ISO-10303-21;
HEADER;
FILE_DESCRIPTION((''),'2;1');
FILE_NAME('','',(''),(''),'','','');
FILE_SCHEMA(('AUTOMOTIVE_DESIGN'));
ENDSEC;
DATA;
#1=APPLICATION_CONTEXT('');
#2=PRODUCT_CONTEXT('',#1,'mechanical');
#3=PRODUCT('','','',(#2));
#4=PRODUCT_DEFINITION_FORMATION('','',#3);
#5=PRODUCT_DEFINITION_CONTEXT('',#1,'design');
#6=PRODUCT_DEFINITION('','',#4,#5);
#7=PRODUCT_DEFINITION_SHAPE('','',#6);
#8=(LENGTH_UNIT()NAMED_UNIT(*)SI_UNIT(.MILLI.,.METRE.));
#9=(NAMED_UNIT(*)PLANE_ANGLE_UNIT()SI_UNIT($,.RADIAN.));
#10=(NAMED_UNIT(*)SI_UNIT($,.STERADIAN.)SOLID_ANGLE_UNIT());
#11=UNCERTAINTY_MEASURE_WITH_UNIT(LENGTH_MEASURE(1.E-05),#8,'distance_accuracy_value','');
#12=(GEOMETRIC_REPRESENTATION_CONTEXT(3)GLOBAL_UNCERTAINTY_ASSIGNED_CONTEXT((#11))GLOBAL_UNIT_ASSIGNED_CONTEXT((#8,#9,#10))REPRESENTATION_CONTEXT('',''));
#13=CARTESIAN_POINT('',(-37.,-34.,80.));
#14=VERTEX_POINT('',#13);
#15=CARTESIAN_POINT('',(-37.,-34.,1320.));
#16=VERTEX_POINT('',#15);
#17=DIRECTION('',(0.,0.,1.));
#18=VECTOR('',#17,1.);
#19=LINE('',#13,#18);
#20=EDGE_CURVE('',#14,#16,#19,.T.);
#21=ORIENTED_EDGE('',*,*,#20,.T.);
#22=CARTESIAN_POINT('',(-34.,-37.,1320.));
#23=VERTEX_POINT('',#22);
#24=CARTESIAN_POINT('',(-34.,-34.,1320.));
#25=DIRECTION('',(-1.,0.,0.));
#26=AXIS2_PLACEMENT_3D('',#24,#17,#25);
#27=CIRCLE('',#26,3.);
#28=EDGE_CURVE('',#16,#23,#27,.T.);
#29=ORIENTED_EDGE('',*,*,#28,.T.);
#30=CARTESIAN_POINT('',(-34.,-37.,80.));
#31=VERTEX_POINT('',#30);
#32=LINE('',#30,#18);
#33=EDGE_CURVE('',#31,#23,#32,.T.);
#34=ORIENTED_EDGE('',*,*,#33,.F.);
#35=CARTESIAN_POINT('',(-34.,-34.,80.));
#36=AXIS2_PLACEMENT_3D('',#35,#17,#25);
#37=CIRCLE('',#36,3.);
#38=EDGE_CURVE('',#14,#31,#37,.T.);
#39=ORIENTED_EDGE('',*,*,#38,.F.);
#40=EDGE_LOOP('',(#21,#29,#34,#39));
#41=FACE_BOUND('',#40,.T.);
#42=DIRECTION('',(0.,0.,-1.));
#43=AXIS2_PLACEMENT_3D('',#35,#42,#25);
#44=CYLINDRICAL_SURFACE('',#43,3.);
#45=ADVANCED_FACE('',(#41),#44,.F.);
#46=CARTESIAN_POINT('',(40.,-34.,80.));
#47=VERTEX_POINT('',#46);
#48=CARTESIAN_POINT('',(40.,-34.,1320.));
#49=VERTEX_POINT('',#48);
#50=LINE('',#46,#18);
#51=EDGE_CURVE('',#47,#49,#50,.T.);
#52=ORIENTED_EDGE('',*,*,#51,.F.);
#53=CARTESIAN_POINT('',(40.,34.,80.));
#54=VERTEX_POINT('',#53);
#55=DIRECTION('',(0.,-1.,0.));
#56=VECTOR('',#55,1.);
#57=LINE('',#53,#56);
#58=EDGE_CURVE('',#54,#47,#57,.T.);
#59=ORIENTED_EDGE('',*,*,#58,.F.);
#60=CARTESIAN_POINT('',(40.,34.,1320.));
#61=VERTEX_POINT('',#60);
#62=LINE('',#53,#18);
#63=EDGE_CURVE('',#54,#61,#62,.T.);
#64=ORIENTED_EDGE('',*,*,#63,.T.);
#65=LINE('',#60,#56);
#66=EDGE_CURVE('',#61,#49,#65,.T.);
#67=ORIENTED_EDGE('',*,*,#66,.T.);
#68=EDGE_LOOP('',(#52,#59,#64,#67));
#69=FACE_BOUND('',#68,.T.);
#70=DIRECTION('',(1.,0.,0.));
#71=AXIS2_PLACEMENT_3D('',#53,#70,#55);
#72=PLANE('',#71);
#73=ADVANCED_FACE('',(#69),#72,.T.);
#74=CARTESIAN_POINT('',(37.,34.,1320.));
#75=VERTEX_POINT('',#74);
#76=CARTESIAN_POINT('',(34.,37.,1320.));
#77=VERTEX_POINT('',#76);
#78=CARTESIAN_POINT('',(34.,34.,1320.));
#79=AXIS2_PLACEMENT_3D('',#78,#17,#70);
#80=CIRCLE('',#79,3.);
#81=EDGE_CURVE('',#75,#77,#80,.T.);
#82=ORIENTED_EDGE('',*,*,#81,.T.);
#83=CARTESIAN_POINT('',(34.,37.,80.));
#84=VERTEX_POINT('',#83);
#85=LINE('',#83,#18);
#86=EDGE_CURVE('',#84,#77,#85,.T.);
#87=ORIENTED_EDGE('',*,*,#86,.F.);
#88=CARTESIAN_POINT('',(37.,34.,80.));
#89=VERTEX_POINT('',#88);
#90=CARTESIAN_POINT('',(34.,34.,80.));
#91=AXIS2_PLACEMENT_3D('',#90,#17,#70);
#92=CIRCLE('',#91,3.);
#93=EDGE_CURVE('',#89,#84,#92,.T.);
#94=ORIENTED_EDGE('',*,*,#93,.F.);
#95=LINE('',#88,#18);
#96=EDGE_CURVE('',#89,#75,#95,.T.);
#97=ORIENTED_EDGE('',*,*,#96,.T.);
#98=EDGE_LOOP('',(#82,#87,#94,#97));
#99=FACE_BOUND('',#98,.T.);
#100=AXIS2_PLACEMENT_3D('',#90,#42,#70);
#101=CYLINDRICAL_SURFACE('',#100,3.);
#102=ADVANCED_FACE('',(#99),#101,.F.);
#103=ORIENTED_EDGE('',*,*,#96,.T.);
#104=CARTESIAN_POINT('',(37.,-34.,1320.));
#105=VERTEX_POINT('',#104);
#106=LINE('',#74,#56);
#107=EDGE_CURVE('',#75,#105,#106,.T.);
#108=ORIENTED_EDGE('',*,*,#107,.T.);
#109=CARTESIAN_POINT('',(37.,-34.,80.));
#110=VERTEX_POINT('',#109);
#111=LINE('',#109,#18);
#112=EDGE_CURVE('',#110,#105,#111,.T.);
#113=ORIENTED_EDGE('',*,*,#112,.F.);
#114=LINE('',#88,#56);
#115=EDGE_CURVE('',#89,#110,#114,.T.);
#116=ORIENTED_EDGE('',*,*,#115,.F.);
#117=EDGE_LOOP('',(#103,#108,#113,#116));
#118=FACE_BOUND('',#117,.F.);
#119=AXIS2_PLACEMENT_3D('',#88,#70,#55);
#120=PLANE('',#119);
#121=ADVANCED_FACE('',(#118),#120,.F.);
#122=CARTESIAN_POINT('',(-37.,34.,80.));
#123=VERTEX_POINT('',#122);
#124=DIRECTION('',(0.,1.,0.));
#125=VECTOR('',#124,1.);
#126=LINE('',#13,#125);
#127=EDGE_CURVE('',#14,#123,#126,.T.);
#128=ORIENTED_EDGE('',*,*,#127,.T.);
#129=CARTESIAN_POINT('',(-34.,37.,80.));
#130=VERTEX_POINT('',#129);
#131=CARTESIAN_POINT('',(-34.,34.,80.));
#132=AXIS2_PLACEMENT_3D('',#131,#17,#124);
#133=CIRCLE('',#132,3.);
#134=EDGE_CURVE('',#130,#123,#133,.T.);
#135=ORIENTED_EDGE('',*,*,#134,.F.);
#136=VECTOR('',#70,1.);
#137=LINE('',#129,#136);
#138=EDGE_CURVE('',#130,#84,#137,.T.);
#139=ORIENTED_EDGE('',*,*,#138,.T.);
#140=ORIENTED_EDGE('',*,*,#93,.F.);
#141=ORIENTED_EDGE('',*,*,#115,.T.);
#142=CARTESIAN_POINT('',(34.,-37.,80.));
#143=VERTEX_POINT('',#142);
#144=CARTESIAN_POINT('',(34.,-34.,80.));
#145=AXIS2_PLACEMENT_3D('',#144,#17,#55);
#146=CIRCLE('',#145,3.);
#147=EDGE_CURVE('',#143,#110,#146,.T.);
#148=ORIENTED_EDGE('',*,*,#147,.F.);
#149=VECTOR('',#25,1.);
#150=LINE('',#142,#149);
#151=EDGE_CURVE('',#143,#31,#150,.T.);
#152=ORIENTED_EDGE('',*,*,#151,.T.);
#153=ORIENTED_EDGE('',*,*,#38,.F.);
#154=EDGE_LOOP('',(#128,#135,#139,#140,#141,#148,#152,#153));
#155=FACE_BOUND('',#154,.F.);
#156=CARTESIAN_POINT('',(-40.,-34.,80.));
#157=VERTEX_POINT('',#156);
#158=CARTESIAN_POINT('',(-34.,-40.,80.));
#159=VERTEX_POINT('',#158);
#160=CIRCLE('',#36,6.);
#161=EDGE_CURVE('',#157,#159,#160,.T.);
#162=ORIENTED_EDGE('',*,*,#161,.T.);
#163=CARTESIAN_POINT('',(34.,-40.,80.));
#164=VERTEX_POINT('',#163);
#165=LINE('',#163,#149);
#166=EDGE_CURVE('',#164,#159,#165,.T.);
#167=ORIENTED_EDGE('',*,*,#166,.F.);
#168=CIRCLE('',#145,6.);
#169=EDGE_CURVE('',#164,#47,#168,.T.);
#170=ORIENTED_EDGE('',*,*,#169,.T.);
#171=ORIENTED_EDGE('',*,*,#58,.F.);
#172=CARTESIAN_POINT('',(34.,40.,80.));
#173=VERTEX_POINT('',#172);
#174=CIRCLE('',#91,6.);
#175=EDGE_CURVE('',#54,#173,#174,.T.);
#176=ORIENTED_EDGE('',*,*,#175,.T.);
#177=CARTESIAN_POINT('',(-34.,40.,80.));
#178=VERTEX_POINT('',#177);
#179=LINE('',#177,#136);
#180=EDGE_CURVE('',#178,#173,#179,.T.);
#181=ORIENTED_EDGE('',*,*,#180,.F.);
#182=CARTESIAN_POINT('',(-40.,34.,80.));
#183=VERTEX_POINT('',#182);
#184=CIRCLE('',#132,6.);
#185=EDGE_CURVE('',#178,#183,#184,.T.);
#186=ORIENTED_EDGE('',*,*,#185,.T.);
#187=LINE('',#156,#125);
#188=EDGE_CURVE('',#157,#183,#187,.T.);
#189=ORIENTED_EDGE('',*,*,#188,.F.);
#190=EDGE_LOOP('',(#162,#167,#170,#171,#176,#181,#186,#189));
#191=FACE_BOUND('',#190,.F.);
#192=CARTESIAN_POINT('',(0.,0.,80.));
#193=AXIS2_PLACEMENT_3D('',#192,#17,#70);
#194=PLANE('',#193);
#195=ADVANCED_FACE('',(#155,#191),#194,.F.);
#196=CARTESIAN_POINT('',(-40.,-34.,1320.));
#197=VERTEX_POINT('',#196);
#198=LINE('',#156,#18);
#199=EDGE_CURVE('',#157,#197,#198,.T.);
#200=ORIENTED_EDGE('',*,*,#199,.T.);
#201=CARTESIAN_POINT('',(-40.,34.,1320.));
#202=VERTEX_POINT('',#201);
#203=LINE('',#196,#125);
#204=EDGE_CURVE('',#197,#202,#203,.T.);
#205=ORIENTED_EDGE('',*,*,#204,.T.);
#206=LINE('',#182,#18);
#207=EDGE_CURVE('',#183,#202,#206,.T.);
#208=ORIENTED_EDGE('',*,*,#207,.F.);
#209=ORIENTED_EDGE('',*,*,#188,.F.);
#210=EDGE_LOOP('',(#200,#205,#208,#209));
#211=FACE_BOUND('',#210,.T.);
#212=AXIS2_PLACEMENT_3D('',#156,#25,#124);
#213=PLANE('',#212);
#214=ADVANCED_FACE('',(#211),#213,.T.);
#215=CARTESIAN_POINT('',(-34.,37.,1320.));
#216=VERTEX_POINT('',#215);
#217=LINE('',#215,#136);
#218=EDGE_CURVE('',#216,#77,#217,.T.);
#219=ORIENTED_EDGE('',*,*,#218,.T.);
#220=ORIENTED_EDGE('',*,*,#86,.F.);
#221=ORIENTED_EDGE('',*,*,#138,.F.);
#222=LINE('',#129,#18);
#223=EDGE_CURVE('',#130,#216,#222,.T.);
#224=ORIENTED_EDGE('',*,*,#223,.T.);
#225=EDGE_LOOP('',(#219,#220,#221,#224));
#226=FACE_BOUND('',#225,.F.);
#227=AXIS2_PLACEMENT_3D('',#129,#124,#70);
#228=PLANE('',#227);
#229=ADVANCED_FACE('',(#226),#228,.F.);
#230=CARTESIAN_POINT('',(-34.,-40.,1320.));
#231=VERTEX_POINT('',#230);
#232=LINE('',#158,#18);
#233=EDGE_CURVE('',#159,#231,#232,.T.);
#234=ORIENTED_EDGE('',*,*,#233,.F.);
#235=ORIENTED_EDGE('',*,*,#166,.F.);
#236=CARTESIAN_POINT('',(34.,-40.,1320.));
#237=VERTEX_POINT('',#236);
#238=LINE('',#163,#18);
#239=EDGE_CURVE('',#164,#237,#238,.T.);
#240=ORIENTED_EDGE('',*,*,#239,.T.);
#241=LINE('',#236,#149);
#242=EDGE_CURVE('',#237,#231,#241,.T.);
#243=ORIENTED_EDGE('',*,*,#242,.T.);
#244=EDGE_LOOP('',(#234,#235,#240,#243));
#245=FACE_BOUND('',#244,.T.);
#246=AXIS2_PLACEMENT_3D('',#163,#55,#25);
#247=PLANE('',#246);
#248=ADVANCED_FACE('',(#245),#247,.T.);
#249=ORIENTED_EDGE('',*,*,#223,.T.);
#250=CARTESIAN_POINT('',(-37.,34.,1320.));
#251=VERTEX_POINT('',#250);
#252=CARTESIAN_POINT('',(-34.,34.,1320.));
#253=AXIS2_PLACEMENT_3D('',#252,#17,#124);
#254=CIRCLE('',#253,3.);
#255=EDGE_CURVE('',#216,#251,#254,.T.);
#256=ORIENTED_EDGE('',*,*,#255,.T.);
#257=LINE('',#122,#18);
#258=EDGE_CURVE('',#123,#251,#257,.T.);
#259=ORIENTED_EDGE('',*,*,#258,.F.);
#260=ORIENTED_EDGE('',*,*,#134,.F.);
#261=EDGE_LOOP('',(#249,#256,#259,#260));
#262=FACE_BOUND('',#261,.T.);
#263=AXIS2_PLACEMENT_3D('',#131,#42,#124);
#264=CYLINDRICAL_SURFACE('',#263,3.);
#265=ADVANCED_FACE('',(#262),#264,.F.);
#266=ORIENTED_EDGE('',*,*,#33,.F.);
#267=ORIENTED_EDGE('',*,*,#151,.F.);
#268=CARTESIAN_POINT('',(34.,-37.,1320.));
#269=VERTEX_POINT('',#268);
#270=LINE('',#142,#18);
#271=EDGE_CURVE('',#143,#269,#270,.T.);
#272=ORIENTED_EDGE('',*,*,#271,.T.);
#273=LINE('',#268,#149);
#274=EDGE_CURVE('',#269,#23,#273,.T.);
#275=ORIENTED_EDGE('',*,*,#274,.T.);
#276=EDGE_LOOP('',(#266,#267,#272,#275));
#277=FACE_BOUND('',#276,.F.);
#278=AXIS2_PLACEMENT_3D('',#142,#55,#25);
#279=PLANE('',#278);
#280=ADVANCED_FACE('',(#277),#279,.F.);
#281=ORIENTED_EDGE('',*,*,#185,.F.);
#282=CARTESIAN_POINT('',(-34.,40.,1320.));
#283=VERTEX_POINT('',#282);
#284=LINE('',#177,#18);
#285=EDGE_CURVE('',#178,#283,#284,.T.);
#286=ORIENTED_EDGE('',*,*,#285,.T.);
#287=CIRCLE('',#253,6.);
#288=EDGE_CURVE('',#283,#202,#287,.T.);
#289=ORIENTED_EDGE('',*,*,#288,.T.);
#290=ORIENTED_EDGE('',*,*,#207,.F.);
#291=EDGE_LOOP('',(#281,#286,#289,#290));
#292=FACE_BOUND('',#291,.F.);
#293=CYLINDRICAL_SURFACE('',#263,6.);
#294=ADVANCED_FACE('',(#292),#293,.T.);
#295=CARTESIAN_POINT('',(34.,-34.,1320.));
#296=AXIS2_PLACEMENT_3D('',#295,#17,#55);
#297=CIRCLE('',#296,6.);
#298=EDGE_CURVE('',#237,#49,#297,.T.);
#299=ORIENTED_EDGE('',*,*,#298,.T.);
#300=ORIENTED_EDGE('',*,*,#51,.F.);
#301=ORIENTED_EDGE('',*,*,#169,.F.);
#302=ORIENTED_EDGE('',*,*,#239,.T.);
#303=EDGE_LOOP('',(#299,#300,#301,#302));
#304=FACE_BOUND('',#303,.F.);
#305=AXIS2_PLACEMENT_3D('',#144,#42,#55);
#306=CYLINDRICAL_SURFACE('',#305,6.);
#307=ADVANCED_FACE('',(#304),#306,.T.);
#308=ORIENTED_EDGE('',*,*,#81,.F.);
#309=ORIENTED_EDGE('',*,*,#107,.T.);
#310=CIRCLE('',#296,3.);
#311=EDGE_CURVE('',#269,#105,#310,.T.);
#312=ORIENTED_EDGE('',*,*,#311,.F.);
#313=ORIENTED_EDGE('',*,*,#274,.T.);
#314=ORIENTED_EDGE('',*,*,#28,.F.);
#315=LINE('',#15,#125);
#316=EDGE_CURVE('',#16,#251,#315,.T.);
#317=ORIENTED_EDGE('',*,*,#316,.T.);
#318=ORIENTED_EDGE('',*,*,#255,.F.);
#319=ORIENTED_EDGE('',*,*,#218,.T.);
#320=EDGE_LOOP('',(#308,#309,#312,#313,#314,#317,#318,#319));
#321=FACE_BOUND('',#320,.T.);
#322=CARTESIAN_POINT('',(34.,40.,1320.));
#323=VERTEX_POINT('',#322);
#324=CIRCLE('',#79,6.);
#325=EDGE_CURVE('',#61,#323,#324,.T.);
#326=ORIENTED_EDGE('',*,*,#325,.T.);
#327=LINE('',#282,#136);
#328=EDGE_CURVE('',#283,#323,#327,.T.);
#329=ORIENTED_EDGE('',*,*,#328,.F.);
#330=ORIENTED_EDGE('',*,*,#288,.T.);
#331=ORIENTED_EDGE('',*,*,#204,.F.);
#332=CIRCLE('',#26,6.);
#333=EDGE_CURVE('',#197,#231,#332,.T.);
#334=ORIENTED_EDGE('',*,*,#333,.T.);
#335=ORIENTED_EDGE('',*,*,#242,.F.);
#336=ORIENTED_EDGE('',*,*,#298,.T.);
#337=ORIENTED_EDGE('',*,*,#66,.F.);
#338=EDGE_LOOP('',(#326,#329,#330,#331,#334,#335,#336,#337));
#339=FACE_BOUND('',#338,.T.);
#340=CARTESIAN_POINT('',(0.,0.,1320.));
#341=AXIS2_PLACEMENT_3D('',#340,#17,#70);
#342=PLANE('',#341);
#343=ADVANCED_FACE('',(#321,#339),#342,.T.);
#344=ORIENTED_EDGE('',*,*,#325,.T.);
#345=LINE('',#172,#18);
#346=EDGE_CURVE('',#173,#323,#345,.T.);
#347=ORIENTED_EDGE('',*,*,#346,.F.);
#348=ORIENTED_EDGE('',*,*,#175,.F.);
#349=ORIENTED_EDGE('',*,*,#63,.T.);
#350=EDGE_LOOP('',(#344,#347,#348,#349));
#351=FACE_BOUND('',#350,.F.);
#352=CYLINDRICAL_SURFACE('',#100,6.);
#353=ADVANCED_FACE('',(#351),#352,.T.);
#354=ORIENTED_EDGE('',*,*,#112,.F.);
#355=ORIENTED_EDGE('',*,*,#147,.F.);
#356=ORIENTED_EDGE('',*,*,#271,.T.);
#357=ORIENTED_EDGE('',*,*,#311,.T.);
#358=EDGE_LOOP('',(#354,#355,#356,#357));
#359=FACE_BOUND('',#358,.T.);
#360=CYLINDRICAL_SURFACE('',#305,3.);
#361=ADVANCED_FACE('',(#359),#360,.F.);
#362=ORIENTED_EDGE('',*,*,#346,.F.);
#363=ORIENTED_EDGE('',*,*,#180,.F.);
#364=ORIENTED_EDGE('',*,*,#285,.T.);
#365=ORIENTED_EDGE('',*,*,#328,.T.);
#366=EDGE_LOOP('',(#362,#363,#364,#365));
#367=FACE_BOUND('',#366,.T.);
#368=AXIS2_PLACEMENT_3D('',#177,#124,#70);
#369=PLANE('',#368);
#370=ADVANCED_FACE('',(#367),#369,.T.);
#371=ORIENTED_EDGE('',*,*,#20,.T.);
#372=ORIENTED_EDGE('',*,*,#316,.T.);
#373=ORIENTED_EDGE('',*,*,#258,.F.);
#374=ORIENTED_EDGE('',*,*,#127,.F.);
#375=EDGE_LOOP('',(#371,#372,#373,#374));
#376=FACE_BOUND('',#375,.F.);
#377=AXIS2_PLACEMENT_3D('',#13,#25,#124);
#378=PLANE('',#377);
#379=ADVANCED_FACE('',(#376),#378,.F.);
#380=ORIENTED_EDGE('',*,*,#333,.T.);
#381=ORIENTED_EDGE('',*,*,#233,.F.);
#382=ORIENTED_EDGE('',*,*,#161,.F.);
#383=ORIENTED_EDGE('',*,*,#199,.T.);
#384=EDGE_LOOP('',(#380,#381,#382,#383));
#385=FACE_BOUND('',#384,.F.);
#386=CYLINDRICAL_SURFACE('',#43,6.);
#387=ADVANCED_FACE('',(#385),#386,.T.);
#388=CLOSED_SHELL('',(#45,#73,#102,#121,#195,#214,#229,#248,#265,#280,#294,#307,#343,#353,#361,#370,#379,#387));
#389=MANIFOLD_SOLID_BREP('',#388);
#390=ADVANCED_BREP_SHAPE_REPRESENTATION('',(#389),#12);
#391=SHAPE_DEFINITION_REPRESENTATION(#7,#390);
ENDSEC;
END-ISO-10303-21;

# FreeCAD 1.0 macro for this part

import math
import FreeCAD as App
import Part
import Sketcher
Q = App.Units.Quantity

doc = App.newDocument("Part")
body = doc.addObject("PartDesign::Body", "Body")

sketch1 = body.newObject("Sketcher::SketchObject", "Sketch")
sketch1.AttachmentSupport = (doc.getObject("XY_Plane"), [""])
sketch1.MapMode = "FlatFace"
sketch1.AttachmentOffset = App.Placement(App.Vector(0, 0, 80), App.Rotation())
sketch1.addGeometry([
    Part.LineSegment(App.Vector(-40, 34, 0), App.Vector(-40, -34, 0)),
    Part.ArcOfCircle(Part.Circle(App.Vector(-34, -34, 0), App.Vector(0, 0, 1), 6), math.radians(180), math.radians(270)),
    Part.LineSegment(App.Vector(-34, -40, 0), App.Vector(34, -40, 0)),
    Part.ArcOfCircle(Part.Circle(App.Vector(34, -34, 0), App.Vector(0, 0, 1), 6), math.radians(-90), math.radians(0)),
    Part.LineSegment(App.Vector(40, -34, 0), App.Vector(40, 34, 0)),
    Part.ArcOfCircle(Part.Circle(App.Vector(34, 34, 0), App.Vector(0, 0, 1), 6), math.radians(0), math.radians(90)),
    Part.LineSegment(App.Vector(34, 40, 0), App.Vector(-34, 40, 0)),
    Part.ArcOfCircle(Part.Circle(App.Vector(-34, 34, 0), App.Vector(0, 0, 1), 6), math.radians(90), math.radians(180)),
    Part.ArcOfCircle(Part.Circle(App.Vector(-34, 34, 0), App.Vector(0, 0, 1), 3), math.radians(90), math.radians(180)),
    Part.LineSegment(App.Vector(-34, 37, 0), App.Vector(34, 37, 0)),
    Part.ArcOfCircle(Part.Circle(App.Vector(34, 34, 0), App.Vector(0, 0, 1), 3), math.radians(0), math.radians(90)),
    Part.LineSegment(App.Vector(37, 34, 0), App.Vector(37, -34, 0)),
    Part.ArcOfCircle(Part.Circle(App.Vector(34, -34, 0), App.Vector(0, 0, 1), 3), math.radians(-90), math.radians(0)),
    Part.LineSegment(App.Vector(34, -37, 0), App.Vector(-34, -37, 0)),
    Part.ArcOfCircle(Part.Circle(App.Vector(-34, -34, 0), App.Vector(0, 0, 1), 3), math.radians(180), math.radians(270)),
    Part.LineSegment(App.Vector(-37, -34, 0), App.Vector(-37, 34, 0)),
], False)
sketch1.addConstraint([
    Sketcher.Constraint("Tangent", 0, 2, 1, 1),
    Sketcher.Constraint("Tangent", 1, 2, 2, 1),
    Sketcher.Constraint("Tangent", 2, 2, 3, 1),
    Sketcher.Constraint("Tangent", 3, 2, 4, 1),
    Sketcher.Constraint("Tangent", 4, 2, 5, 1),
    Sketcher.Constraint("Tangent", 5, 2, 6, 1),
    Sketcher.Constraint("Tangent", 6, 2, 7, 1),
    Sketcher.Constraint("Tangent", 7, 2, 0, 1),
    Sketcher.Constraint("Tangent", 8, 1, 9, 1),
    Sketcher.Constraint("Tangent", 9, 2, 10, 2),
    Sketcher.Constraint("Tangent", 10, 1, 11, 1),
    Sketcher.Constraint("Tangent", 11, 2, 12, 2),
    Sketcher.Constraint("Tangent", 12, 1, 13, 1),
    Sketcher.Constraint("Tangent", 13, 2, 14, 2),
    Sketcher.Constraint("Tangent", 14, 1, 15, 1),
    Sketcher.Constraint("Tangent", 15, 2, 8, 2),
    Sketcher.Constraint("Vertical", 0),
    Sketcher.Constraint("Horizontal", 2),
    Sketcher.Constraint("Vertical", 4),
    Sketcher.Constraint("Horizontal", 6),
    Sketcher.Constraint("Horizontal", 9),
    Sketcher.Constraint("Vertical", 11),
    Sketcher.Constraint("Horizontal", 13),
    Sketcher.Constraint("Vertical", 15),
    Sketcher.Constraint("Coincident", 8, 3, 7, 3),
    Sketcher.Constraint("Coincident", 10, 3, 5, 3),
    Sketcher.Constraint("Coincident", 12, 3, 3, 3),
    Sketcher.Constraint("Equal", 1, 3),
    Sketcher.Constraint("Equal", 3, 5),
    Sketcher.Constraint("Equal", 5, 7),
    Sketcher.Constraint("Equal", 12, 14),
    Sketcher.Constraint("Symmetric", 1, 3, 5, 3, -1, 1),
    Sketcher.Constraint("Equal", 13, 0),
    Sketcher.Constraint("Radius", 1, Q("6 mm")),
    Sketcher.Constraint("Radius", 8, Q("3 mm")),
    Sketcher.Constraint("DistanceX", 0, 2, -1, 1, Q("40 mm")),
])
pad1 = body.newObject("PartDesign::Pad", "Pad")
pad1.Profile = sketch1
pad1.Length = 1240

doc.recompute()
